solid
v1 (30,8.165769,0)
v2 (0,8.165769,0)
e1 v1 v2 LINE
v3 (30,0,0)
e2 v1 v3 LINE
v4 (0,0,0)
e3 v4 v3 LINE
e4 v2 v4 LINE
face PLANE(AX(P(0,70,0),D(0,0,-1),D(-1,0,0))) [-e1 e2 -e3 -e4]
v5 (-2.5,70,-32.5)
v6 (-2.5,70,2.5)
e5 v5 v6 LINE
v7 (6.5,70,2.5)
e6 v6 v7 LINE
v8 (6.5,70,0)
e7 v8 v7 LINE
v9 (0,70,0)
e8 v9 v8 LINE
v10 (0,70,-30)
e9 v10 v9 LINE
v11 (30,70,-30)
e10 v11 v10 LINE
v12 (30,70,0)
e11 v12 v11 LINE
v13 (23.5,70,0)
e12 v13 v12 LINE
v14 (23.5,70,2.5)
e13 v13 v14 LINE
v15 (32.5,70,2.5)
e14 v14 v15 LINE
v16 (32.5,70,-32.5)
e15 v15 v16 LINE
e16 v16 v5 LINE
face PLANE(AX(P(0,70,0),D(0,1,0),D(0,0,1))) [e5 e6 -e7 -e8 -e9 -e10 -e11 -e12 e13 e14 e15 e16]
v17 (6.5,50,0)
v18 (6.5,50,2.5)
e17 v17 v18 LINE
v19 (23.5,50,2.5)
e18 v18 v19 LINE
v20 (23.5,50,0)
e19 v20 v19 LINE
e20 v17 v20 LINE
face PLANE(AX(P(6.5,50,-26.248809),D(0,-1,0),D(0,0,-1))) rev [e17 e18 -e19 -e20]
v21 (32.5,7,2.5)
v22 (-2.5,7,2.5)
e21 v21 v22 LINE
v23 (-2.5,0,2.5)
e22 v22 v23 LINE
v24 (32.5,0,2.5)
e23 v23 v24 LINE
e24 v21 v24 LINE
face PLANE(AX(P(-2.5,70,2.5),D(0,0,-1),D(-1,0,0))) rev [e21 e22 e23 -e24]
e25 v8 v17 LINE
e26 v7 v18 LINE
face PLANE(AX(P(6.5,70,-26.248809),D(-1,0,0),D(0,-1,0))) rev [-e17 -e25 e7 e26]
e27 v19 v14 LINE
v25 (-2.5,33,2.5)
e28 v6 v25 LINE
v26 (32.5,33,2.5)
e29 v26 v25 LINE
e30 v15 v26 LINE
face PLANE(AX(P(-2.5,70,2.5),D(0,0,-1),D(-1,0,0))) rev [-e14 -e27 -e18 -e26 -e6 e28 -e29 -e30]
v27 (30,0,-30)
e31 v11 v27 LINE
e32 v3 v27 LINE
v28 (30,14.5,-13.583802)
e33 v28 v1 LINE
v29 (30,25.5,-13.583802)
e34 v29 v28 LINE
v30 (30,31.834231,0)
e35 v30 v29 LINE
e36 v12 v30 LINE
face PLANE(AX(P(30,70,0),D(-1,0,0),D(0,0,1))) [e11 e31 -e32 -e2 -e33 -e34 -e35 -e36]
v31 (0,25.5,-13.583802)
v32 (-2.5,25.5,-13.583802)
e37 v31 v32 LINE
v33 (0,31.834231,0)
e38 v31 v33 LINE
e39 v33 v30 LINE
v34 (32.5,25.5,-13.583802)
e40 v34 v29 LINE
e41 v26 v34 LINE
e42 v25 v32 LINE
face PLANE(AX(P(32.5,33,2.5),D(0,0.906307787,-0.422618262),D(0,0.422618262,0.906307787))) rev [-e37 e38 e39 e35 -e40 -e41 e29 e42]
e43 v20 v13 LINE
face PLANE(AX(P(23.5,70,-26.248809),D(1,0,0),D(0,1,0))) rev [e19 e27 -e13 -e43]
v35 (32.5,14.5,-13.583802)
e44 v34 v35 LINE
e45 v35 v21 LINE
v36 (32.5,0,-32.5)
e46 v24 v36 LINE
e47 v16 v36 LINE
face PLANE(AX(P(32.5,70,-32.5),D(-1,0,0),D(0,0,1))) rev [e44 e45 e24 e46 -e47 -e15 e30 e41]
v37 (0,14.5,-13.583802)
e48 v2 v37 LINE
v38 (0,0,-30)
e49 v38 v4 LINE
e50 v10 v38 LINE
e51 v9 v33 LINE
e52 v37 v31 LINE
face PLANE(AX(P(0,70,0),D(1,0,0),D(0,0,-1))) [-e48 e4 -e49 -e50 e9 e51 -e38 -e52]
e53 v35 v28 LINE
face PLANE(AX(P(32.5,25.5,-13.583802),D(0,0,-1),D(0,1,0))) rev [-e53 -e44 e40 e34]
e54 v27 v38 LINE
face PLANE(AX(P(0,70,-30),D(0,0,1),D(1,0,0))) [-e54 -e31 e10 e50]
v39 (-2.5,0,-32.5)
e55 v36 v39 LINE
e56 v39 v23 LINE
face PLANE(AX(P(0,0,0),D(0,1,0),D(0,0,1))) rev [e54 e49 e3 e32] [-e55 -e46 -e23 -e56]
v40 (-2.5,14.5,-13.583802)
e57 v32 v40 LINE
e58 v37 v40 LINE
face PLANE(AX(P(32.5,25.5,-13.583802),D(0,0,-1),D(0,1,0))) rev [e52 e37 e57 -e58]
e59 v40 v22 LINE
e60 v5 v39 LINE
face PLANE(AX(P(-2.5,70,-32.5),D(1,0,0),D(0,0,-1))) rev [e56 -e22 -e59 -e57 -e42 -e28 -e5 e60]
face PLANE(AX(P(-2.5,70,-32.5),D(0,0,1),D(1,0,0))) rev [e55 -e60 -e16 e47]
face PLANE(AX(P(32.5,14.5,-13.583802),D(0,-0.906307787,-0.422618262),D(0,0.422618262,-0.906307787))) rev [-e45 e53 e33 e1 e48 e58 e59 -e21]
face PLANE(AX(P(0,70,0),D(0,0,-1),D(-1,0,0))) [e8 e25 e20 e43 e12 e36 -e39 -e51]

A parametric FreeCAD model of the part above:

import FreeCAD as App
import Part
import Sketcher
Q = App.Units.Quantity

doc = App.newDocument("Part")
params = doc.addObject("Spreadsheet::Sheet", "Params")
for row, (alias, value) in enumerate([
    ("sketch1_width", "35 mm"),
    ("sketch1_width2", "30 mm"),
    ("pad1_length", "70 mm"),
    ("sketch2_width", "17 mm"),
    ("sketch2_height", "20 mm"),
    ("pocket1_length", "2.5 mm"),
    ("sketch3_width", "11 mm"),
    ("sketch3_width2", "26 mm"),
], start=1):
    params.set(f"A{row}", alias)
    params.set(f"B{row}", "=" + value)
    params.setAlias(f"B{row}", alias)

body = doc.addObject("PartDesign::Body", "Body")

sketch1 = body.newObject("Sketcher::SketchObject", "Sketch")
sketch1.AttachmentSupport = (doc.getObject("XZ_Plane"), [""])
sketch1.MapMode = "FlatFace"
sketch1.addGeometry(Part.LineSegment(App.Vector(-2, -32, 0), App.Vector(-2, 2, 0)), False)
sketch1.addGeometry(Part.LineSegment(App.Vector(-2, 2, 0), App.Vector(32, 2, 0)), False)
sketch1.addGeometry(Part.LineSegment(App.Vector(32, 2, 0), App.Vector(32, -32, 0)), False)
sketch1.addGeometry(Part.LineSegment(App.Vector(32, -32, 0), App.Vector(-2, -32, 0)), False)
sketch1.addGeometry(Part.LineSegment(App.Vector(30, 0, 0), App.Vector(0, 0, 0)), False)
sketch1.addGeometry(Part.LineSegment(App.Vector(0, 0, 0), App.Vector(0, -30, 0)), False)
sketch1.addGeometry(Part.LineSegment(App.Vector(0, -30, 0), App.Vector(30, -30, 0)), False)
sketch1.addGeometry(Part.LineSegment(App.Vector(30, -30, 0), App.Vector(30, 0, 0)), False)
sketch1.addConstraint(Sketcher.Constraint("Coincident", 0, 2, 1, 1))
sketch1.addConstraint(Sketcher.Constraint("Coincident", 1, 2, 2, 1))
sketch1.addConstraint(Sketcher.Constraint("Coincident", 2, 2, 3, 1))
sketch1.addConstraint(Sketcher.Constraint("Coincident", 3, 2, 0, 1))
sketch1.addConstraint(Sketcher.Constraint("Coincident", 4, 2, 5, 1))
sketch1.addConstraint(Sketcher.Constraint("Coincident", 5, 2, 6, 1))
sketch1.addConstraint(Sketcher.Constraint("Coincident", 6, 2, 7, 1))
sketch1.addConstraint(Sketcher.Constraint("Coincident", 7, 2, 4, 1))
sketch1.addConstraint(Sketcher.Constraint("Vertical", 0))
sketch1.addConstraint(Sketcher.Constraint("Horizontal", 1))
sketch1.addConstraint(Sketcher.Constraint("Vertical", 2))
sketch1.addConstraint(Sketcher.Constraint("Horizontal", 3))
sketch1.addConstraint(Sketcher.Constraint("Horizontal", 4))
sketch1.addConstraint(Sketcher.Constraint("Vertical", 5))
sketch1.addConstraint(Sketcher.Constraint("Horizontal", 6))
sketch1.addConstraint(Sketcher.Constraint("Vertical", 7))
sketch1.addConstraint(Sketcher.Constraint("Coincident", 4, 2, -1, 1))
sketch1.addConstraint(Sketcher.Constraint("Equal", 3, 0))
sketch1.addConstraint(Sketcher.Constraint("Equal", 6, 5))
sketch1.addConstraint(Sketcher.Constraint("DistanceX", 1, 1, 1, 2, 35.0))
sketch1.addConstraint(Sketcher.Constraint("DistanceX", 4, 2, 4, 1, 30.0))
sketch1.addConstraint(Sketcher.Constraint("DistanceX", 0, 2, -1, 1, 2.5))
sketch1.addConstraint(Sketcher.Constraint("DistanceY", -1, 1, 0, 2, 2.5))
sketch1.setExpression("Constraints[19]", "Params.sketch1_width")
sketch1.setExpression("Constraints[20]", "Params.sketch1_width2")
pad1 = body.newObject("PartDesign::Pad", "Pad")
pad1.Profile = sketch1
pad1.setExpression("Length", "Params.pad1_length")
pad1.Reversed = True

sketch2 = body.newObject("Sketcher::SketchObject", "Sketch001")
sketch2.AttachmentSupport = (doc.getObject("XY_Plane"), [""])
sketch2.MapMode = "FlatFace"
sketch2.AttachmentOffset = App.Placement(App.Vector(0, 0, 2.5), App.Rotation())
sketch2.addGeometry(Part.LineSegment(App.Vector(6, 70, 0), App.Vector(6, 50, 0)), False)
sketch2.addGeometry(Part.LineSegment(App.Vector(6, 50, 0), App.Vector(24, 50, 0)), False)
sketch2.addGeometry(Part.LineSegment(App.Vector(24, 50, 0), App.Vector(24, 70, 0)), False)
sketch2.addGeometry(Part.LineSegment(App.Vector(24, 70, 0), App.Vector(6, 70, 0)), False)
sketch2.addConstraint(Sketcher.Constraint("Coincident", 0, 2, 1, 1))
sketch2.addConstraint(Sketcher.Constraint("Coincident", 1, 2, 2, 1))
sketch2.addConstraint(Sketcher.Constraint("Coincident", 2, 2, 3, 1))
sketch2.addConstraint(Sketcher.Constraint("Coincident", 3, 2, 0, 1))
sketch2.addConstraint(Sketcher.Constraint("Vertical", 0))
sketch2.addConstraint(Sketcher.Constraint("Horizontal", 1))
sketch2.addConstraint(Sketcher.Constraint("Vertical", 2))
sketch2.addConstraint(Sketcher.Constraint("Horizontal", 3))
sketch2.addConstraint(Sketcher.Constraint("DistanceX", 1, 1, 1, 2, 17.0))
sketch2.addConstraint(Sketcher.Constraint("DistanceY", 0, 2, 0, 1, 20.0))
sketch2.addConstraint(Sketcher.Constraint("DistanceY", -1, 1, 0, 2, 50.0))
sketch2.addConstraint(Sketcher.Constraint("DistanceX", -1, 1, 0, 2, 6.5))
sketch2.setExpression("Constraints[8]", "Params.sketch2_width")
sketch2.setExpression("Constraints[9]", "Params.sketch2_height")
pocket1 = body.newObject("PartDesign::Pocket", "Pocket")
pocket1.Profile = sketch2
pocket1.setExpression("Length", "Params.pocket1_length")

sketch3 = body.newObject("Sketcher::SketchObject", "Sketch002")
sketch3.AttachmentSupport = (doc.getObject("YZ_Plane"), [""])
sketch3.MapMode = "FlatFace"
sketch3.AttachmentOffset = App.Placement(App.Vector(0, 0, -2.5), App.Rotation())
sketch3.addGeometry(Part.LineSegment(App.Vector(33, 2, 0), App.Vector(26, -14, 0)), False)
sketch3.addGeometry(Part.LineSegment(App.Vector(26, -14, 0), App.Vector(14, -14, 0)), False)
sketch3.addGeometry(Part.LineSegment(App.Vector(14, -14, 0), App.Vector(7, 2, 0)), False)
sketch3.addGeometry(Part.LineSegment(App.Vector(7, 2, 0), App.Vector(33, 2, 0)), False)
sketch3.addConstraint(Sketcher.Constraint("Coincident", 0, 2, 1, 1))
sketch3.addConstraint(Sketcher.Constraint("Coincident", 1, 2, 2, 1))
sketch3.addConstraint(Sketcher.Constraint("Coincident", 2, 2, 3, 1))
sketch3.addConstraint(Sketcher.Constraint("Coincident", 3, 2, 0, 1))
sketch3.addConstraint(Sketcher.Constraint("Horizontal", 1))
sketch3.addConstraint(Sketcher.Constraint("Horizontal", 3))
sketch3.addConstraint(Sketcher.Constraint("Equal", 0, 2))
sketch3.addConstraint(Sketcher.Constraint("DistanceX", 1, 2, 1, 1, 11.0))
sketch3.addConstraint(Sketcher.Constraint("DistanceX", 3, 1, 3, 2, 26.0))
sketch3.addConstraint(Sketcher.Constraint("Angle", 0, Q("-115 deg")))
sketch3.addConstraint(Sketcher.Constraint("DistanceX", -1, 1, 2, 2, 7.0))
sketch3.addConstraint(Sketcher.Constraint("DistanceY", -1, 1, 2, 2, 2.5))
sketch3.setExpression("Constraints[7]", "Params.sketch3_width")
sketch3.setExpression("Constraints[8]", "Params.sketch3_width2")
pocket2 = body.newObject("PartDesign::Pocket", "Pocket001")
pocket2.Profile = sketch3
pocket2.Type = "ThroughAll"
pocket2.Reversed = True

doc.recompute()
